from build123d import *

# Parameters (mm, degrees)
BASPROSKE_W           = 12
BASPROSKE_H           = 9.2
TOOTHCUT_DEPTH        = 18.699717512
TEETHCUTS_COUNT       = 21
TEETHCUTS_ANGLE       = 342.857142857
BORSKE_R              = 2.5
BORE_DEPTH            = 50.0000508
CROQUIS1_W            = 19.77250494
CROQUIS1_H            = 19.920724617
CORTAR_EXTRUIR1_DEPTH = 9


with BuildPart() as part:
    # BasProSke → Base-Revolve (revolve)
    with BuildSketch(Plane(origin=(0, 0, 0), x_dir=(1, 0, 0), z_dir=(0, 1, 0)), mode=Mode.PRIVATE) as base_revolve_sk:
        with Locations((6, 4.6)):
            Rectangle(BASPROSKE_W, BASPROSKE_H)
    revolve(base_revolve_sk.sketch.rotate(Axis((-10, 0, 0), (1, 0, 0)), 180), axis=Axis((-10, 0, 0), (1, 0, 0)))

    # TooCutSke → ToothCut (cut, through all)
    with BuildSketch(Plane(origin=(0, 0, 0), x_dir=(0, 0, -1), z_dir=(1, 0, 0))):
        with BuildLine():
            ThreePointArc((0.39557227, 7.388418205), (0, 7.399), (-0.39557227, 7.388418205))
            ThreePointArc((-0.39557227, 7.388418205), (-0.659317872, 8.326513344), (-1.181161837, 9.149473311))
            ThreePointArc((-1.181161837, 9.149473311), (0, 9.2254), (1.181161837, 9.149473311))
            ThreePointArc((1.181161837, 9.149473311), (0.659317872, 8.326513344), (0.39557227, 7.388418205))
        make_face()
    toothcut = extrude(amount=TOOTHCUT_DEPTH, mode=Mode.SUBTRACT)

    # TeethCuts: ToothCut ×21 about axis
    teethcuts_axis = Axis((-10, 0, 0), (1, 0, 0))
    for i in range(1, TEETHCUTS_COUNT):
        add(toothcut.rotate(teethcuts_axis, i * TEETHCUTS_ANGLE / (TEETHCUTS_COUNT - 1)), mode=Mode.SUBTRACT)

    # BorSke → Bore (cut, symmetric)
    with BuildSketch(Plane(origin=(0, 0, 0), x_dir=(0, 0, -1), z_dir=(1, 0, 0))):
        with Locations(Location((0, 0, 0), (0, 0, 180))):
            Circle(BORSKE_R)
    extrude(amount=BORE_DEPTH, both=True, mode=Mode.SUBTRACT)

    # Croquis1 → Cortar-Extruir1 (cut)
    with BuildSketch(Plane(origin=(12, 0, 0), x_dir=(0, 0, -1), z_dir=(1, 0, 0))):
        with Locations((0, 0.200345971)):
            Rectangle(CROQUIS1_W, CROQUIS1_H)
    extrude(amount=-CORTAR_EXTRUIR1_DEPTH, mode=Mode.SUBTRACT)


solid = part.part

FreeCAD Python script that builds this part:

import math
import FreeCAD as App
import Part
import Sketcher
from FreeCAD import Vector


def add_polygon(sketch, points):
    """Adds a closed chain of lines whose ends are joined by coincident constraints."""
    first, n = sketch.GeometryCount, len(points)
    for a, b in zip(points, points[1:] + points[:1]):
        sketch.addGeometry(Part.LineSegment(App.Vector(*a, 0), App.Vector(*b, 0)), False)
    for i in range(n):
        sketch.addConstraint(Sketcher.Constraint("Coincident", first + i, 2, first + (i + 1) % n, 1))

doc = App.newDocument("Part")
params = doc.addObject("Spreadsheet::Sheet", "Params")
for row, (alias, value) in enumerate([
    ("sketch1_width", "12 mm"),
    ("sketch1_height", "9.2 mm"),
    ("revolution_angle", "360 deg"),
    ("sketch2_radius", "3.36 mm"),
    ("sketch3_diameter", "5 mm"),
    ("pocket2_length", "100.000102 mm"),
    ("pocket3_length", "9 mm"),
], start=1):
    params.set(f"A{row}", alias)
    params.set(f"B{row}", "=" + value)
    params.setAlias(f"B{row}", alias)

body = doc.addObject("PartDesign::Body", "Body")

sketch1 = body.newObject("Sketcher::SketchObject", "Sketch")
sketch1.AttachmentSupport = (doc.getObject("XZ_Plane"), [""])
sketch1.MapMode = "FlatFace"
add_polygon(sketch1, [(0, -9), (0, 0), (12, 0), (12, -9)])
sketch1.addConstraint(Sketcher.Constraint("Vertical", 0))
sketch1.addConstraint(Sketcher.Constraint("Horizontal", 1))
sketch1.addConstraint(Sketcher.Constraint("Vertical", 2))
sketch1.addConstraint(Sketcher.Constraint("Horizontal", 3))
sketch1.addConstraint(Sketcher.Constraint("Coincident", 0, 2, -1, 1))
sketch1.addConstraint(Sketcher.Constraint("DistanceX", 1, 1, 1, 2, 12.0))
sketch1.addConstraint(Sketcher.Constraint("DistanceY", 0, 1, 0, 2, 9.2))
sketch1.setExpression("Constraints[9]", "Params.sketch1_width")
sketch1.setExpression("Constraints[10]", "Params.sketch1_height")
revolution = body.newObject("PartDesign::Revolution", "Revolution")
revolution.Profile = sketch1
revolution.ReferenceAxis = (sketch1, ["H_Axis"])
revolution.setExpression("Angle", "Params.revolution_angle")

sketch2 = body.newObject("Sketcher::SketchObject", "Sketch001")
sketch2.AttachmentSupport = (doc.getObject("YZ_Plane"), [""])
sketch2.MapMode = "FlatFace"
sketch2.addGeometry(Part.ArcOfCircle(Part.Circle(Vector(0, 0, 0), Vector(0, 0, 1), 7.4), math.radians(-3.06), math.radians(3.06)), False)
sketch2.addGeometry(Part.ArcOfCircle(Part.Circle(Vector(7, -3.7, 0), Vector(0, 0, 1), 3.4), math.radians(49), math.radians(83)), False)
sketch2.addGeometry(Part.ArcOfCircle(Part.Circle(Vector(0, 0, 0), Vector(0, 0, 1), 9.2), math.radians(-7.36), math.radians(7.36)), False)
sketch2.addGeometry(Part.ArcOfCircle(Part.Circle(Vector(7, 3.7, 0), Vector(0, 0, 1), 3.4), math.radians(-83), math.radians(-49)), False)
sketch2.addConstraint(Sketcher.Constraint("Coincident", 0, 1, 1, 2))
sketch2.addConstraint(Sketcher.Constraint("Coincident", 1, 1, 2, 1))
sketch2.addConstraint(Sketcher.Constraint("Coincident", 2, 2, 3, 2))
sketch2.addConstraint(Sketcher.Constraint("Coincident", 3, 1, 0, 2))
sketch2.addConstraint(Sketcher.Constraint("Coincident", 0, 3, -1, 1))
sketch2.addConstraint(Sketcher.Constraint("Coincident", 2, 3, -1, 1))
sketch2.addConstraint(Sketcher.Constraint("Equal", 1, 3))
sketch2.addConstraint(Sketcher.Constraint("Symmetric", 1, 3, 3, 3, -1))
sketch2.addConstraint(Sketcher.Constraint("Radius", 1, 3.36))
sketch2.addConstraint(Sketcher.Constraint("Radius", 0, 7.399))
sketch2.addConstraint(Sketcher.Constraint("Radius", 2, 9.2254))
sketch2.addConstraint(Sketcher.Constraint("DistanceX", 1, 3, 1, 1, 2.191801))
sketch2.addConstraint(Sketcher.Constraint("DistanceX", -1, 1, 0, 1, 7.388418))
sketch2.setExpression("Constraints[8]", "Params.sketch2_radius")
pocket1 = body.newObject("PartDesign::Pocket", "Pocket")
pocket1.Profile = sketch2
pocket1.Type = "ThroughAll"
pocket1.Reversed = True
doc.recompute()

polarpattern = body.newObject("PartDesign::PolarPattern", "PolarPattern")
polarpattern.Originals = [pocket1]
polarpattern.Axis = (doc.getObject("X_Axis"), [""])
polarpattern.Angle = 360
polarpattern.Occurrences = 21
body.Tip = polarpattern

sketch3 = body.newObject("Sketcher::SketchObject", "Sketch002")
sketch3.AttachmentSupport = (doc.getObject("YZ_Plane"), [""])
sketch3.MapMode = "FlatFace"
sketch3.addGeometry(Part.Circle(Vector(0, 0, 0), Vector(0, 0, 1), 2.5), False)
sketch3.addConstraint(Sketcher.Constraint("Coincident", 0, 3, -1, 1))
sketch3.addConstraint(Sketcher.Constraint("Diameter", 0, 5.0))
sketch3.setExpression("Constraints[1]", "Params.sketch3_diameter")
pocket2 = body.newObject("PartDesign::Pocket", "Pocket001")
pocket2.Profile = sketch3
pocket2.setExpression("Length", "Params.pocket2_length")
pocket2.Midplane = True

sketch4 = body.newObject("Sketcher::SketchObject", "Sketch003")
sketch4.AttachmentSupport = (doc.getObject("YZ_Plane"), [""])
sketch4.MapMode = "FlatFace"
sketch4.AttachmentOffset = App.Placement(Vector(0, 0, 12), App.Rotation())
add_polygon(sketch4, [(10, 10), (-10, 10), (-10, -10), (10, -10)])
sketch4.addConstraint(Sketcher.Constraint("Horizontal", 0))
sketch4.addConstraint(Sketcher.Constraint("Vertical", 1))
sketch4.addConstraint(Sketcher.Constraint("Horizontal", 2))
sketch4.addConstraint(Sketcher.Constraint("Vertical", 3))
sketch4.addConstraint(Sketcher.Constraint("DistanceX", 0, 2, 0, 1, 19.920725))
sketch4.addConstraint(Sketcher.Constraint("DistanceY", 1, 2, 1, 1, 19.772505))
sketch4.addConstraint(Sketcher.Constraint("DistanceX", -1, 1, 2, 2, 10.160708))
sketch4.addConstraint(Sketcher.Constraint("DistanceY", -1, 1, 0, 2, 9.886252))
pocket3 = body.newObject("PartDesign::Pocket", "Pocket002")
pocket3.Profile = sketch4
pocket3.setExpression("Length", "Params.pocket3_length")

doc.recompute()
